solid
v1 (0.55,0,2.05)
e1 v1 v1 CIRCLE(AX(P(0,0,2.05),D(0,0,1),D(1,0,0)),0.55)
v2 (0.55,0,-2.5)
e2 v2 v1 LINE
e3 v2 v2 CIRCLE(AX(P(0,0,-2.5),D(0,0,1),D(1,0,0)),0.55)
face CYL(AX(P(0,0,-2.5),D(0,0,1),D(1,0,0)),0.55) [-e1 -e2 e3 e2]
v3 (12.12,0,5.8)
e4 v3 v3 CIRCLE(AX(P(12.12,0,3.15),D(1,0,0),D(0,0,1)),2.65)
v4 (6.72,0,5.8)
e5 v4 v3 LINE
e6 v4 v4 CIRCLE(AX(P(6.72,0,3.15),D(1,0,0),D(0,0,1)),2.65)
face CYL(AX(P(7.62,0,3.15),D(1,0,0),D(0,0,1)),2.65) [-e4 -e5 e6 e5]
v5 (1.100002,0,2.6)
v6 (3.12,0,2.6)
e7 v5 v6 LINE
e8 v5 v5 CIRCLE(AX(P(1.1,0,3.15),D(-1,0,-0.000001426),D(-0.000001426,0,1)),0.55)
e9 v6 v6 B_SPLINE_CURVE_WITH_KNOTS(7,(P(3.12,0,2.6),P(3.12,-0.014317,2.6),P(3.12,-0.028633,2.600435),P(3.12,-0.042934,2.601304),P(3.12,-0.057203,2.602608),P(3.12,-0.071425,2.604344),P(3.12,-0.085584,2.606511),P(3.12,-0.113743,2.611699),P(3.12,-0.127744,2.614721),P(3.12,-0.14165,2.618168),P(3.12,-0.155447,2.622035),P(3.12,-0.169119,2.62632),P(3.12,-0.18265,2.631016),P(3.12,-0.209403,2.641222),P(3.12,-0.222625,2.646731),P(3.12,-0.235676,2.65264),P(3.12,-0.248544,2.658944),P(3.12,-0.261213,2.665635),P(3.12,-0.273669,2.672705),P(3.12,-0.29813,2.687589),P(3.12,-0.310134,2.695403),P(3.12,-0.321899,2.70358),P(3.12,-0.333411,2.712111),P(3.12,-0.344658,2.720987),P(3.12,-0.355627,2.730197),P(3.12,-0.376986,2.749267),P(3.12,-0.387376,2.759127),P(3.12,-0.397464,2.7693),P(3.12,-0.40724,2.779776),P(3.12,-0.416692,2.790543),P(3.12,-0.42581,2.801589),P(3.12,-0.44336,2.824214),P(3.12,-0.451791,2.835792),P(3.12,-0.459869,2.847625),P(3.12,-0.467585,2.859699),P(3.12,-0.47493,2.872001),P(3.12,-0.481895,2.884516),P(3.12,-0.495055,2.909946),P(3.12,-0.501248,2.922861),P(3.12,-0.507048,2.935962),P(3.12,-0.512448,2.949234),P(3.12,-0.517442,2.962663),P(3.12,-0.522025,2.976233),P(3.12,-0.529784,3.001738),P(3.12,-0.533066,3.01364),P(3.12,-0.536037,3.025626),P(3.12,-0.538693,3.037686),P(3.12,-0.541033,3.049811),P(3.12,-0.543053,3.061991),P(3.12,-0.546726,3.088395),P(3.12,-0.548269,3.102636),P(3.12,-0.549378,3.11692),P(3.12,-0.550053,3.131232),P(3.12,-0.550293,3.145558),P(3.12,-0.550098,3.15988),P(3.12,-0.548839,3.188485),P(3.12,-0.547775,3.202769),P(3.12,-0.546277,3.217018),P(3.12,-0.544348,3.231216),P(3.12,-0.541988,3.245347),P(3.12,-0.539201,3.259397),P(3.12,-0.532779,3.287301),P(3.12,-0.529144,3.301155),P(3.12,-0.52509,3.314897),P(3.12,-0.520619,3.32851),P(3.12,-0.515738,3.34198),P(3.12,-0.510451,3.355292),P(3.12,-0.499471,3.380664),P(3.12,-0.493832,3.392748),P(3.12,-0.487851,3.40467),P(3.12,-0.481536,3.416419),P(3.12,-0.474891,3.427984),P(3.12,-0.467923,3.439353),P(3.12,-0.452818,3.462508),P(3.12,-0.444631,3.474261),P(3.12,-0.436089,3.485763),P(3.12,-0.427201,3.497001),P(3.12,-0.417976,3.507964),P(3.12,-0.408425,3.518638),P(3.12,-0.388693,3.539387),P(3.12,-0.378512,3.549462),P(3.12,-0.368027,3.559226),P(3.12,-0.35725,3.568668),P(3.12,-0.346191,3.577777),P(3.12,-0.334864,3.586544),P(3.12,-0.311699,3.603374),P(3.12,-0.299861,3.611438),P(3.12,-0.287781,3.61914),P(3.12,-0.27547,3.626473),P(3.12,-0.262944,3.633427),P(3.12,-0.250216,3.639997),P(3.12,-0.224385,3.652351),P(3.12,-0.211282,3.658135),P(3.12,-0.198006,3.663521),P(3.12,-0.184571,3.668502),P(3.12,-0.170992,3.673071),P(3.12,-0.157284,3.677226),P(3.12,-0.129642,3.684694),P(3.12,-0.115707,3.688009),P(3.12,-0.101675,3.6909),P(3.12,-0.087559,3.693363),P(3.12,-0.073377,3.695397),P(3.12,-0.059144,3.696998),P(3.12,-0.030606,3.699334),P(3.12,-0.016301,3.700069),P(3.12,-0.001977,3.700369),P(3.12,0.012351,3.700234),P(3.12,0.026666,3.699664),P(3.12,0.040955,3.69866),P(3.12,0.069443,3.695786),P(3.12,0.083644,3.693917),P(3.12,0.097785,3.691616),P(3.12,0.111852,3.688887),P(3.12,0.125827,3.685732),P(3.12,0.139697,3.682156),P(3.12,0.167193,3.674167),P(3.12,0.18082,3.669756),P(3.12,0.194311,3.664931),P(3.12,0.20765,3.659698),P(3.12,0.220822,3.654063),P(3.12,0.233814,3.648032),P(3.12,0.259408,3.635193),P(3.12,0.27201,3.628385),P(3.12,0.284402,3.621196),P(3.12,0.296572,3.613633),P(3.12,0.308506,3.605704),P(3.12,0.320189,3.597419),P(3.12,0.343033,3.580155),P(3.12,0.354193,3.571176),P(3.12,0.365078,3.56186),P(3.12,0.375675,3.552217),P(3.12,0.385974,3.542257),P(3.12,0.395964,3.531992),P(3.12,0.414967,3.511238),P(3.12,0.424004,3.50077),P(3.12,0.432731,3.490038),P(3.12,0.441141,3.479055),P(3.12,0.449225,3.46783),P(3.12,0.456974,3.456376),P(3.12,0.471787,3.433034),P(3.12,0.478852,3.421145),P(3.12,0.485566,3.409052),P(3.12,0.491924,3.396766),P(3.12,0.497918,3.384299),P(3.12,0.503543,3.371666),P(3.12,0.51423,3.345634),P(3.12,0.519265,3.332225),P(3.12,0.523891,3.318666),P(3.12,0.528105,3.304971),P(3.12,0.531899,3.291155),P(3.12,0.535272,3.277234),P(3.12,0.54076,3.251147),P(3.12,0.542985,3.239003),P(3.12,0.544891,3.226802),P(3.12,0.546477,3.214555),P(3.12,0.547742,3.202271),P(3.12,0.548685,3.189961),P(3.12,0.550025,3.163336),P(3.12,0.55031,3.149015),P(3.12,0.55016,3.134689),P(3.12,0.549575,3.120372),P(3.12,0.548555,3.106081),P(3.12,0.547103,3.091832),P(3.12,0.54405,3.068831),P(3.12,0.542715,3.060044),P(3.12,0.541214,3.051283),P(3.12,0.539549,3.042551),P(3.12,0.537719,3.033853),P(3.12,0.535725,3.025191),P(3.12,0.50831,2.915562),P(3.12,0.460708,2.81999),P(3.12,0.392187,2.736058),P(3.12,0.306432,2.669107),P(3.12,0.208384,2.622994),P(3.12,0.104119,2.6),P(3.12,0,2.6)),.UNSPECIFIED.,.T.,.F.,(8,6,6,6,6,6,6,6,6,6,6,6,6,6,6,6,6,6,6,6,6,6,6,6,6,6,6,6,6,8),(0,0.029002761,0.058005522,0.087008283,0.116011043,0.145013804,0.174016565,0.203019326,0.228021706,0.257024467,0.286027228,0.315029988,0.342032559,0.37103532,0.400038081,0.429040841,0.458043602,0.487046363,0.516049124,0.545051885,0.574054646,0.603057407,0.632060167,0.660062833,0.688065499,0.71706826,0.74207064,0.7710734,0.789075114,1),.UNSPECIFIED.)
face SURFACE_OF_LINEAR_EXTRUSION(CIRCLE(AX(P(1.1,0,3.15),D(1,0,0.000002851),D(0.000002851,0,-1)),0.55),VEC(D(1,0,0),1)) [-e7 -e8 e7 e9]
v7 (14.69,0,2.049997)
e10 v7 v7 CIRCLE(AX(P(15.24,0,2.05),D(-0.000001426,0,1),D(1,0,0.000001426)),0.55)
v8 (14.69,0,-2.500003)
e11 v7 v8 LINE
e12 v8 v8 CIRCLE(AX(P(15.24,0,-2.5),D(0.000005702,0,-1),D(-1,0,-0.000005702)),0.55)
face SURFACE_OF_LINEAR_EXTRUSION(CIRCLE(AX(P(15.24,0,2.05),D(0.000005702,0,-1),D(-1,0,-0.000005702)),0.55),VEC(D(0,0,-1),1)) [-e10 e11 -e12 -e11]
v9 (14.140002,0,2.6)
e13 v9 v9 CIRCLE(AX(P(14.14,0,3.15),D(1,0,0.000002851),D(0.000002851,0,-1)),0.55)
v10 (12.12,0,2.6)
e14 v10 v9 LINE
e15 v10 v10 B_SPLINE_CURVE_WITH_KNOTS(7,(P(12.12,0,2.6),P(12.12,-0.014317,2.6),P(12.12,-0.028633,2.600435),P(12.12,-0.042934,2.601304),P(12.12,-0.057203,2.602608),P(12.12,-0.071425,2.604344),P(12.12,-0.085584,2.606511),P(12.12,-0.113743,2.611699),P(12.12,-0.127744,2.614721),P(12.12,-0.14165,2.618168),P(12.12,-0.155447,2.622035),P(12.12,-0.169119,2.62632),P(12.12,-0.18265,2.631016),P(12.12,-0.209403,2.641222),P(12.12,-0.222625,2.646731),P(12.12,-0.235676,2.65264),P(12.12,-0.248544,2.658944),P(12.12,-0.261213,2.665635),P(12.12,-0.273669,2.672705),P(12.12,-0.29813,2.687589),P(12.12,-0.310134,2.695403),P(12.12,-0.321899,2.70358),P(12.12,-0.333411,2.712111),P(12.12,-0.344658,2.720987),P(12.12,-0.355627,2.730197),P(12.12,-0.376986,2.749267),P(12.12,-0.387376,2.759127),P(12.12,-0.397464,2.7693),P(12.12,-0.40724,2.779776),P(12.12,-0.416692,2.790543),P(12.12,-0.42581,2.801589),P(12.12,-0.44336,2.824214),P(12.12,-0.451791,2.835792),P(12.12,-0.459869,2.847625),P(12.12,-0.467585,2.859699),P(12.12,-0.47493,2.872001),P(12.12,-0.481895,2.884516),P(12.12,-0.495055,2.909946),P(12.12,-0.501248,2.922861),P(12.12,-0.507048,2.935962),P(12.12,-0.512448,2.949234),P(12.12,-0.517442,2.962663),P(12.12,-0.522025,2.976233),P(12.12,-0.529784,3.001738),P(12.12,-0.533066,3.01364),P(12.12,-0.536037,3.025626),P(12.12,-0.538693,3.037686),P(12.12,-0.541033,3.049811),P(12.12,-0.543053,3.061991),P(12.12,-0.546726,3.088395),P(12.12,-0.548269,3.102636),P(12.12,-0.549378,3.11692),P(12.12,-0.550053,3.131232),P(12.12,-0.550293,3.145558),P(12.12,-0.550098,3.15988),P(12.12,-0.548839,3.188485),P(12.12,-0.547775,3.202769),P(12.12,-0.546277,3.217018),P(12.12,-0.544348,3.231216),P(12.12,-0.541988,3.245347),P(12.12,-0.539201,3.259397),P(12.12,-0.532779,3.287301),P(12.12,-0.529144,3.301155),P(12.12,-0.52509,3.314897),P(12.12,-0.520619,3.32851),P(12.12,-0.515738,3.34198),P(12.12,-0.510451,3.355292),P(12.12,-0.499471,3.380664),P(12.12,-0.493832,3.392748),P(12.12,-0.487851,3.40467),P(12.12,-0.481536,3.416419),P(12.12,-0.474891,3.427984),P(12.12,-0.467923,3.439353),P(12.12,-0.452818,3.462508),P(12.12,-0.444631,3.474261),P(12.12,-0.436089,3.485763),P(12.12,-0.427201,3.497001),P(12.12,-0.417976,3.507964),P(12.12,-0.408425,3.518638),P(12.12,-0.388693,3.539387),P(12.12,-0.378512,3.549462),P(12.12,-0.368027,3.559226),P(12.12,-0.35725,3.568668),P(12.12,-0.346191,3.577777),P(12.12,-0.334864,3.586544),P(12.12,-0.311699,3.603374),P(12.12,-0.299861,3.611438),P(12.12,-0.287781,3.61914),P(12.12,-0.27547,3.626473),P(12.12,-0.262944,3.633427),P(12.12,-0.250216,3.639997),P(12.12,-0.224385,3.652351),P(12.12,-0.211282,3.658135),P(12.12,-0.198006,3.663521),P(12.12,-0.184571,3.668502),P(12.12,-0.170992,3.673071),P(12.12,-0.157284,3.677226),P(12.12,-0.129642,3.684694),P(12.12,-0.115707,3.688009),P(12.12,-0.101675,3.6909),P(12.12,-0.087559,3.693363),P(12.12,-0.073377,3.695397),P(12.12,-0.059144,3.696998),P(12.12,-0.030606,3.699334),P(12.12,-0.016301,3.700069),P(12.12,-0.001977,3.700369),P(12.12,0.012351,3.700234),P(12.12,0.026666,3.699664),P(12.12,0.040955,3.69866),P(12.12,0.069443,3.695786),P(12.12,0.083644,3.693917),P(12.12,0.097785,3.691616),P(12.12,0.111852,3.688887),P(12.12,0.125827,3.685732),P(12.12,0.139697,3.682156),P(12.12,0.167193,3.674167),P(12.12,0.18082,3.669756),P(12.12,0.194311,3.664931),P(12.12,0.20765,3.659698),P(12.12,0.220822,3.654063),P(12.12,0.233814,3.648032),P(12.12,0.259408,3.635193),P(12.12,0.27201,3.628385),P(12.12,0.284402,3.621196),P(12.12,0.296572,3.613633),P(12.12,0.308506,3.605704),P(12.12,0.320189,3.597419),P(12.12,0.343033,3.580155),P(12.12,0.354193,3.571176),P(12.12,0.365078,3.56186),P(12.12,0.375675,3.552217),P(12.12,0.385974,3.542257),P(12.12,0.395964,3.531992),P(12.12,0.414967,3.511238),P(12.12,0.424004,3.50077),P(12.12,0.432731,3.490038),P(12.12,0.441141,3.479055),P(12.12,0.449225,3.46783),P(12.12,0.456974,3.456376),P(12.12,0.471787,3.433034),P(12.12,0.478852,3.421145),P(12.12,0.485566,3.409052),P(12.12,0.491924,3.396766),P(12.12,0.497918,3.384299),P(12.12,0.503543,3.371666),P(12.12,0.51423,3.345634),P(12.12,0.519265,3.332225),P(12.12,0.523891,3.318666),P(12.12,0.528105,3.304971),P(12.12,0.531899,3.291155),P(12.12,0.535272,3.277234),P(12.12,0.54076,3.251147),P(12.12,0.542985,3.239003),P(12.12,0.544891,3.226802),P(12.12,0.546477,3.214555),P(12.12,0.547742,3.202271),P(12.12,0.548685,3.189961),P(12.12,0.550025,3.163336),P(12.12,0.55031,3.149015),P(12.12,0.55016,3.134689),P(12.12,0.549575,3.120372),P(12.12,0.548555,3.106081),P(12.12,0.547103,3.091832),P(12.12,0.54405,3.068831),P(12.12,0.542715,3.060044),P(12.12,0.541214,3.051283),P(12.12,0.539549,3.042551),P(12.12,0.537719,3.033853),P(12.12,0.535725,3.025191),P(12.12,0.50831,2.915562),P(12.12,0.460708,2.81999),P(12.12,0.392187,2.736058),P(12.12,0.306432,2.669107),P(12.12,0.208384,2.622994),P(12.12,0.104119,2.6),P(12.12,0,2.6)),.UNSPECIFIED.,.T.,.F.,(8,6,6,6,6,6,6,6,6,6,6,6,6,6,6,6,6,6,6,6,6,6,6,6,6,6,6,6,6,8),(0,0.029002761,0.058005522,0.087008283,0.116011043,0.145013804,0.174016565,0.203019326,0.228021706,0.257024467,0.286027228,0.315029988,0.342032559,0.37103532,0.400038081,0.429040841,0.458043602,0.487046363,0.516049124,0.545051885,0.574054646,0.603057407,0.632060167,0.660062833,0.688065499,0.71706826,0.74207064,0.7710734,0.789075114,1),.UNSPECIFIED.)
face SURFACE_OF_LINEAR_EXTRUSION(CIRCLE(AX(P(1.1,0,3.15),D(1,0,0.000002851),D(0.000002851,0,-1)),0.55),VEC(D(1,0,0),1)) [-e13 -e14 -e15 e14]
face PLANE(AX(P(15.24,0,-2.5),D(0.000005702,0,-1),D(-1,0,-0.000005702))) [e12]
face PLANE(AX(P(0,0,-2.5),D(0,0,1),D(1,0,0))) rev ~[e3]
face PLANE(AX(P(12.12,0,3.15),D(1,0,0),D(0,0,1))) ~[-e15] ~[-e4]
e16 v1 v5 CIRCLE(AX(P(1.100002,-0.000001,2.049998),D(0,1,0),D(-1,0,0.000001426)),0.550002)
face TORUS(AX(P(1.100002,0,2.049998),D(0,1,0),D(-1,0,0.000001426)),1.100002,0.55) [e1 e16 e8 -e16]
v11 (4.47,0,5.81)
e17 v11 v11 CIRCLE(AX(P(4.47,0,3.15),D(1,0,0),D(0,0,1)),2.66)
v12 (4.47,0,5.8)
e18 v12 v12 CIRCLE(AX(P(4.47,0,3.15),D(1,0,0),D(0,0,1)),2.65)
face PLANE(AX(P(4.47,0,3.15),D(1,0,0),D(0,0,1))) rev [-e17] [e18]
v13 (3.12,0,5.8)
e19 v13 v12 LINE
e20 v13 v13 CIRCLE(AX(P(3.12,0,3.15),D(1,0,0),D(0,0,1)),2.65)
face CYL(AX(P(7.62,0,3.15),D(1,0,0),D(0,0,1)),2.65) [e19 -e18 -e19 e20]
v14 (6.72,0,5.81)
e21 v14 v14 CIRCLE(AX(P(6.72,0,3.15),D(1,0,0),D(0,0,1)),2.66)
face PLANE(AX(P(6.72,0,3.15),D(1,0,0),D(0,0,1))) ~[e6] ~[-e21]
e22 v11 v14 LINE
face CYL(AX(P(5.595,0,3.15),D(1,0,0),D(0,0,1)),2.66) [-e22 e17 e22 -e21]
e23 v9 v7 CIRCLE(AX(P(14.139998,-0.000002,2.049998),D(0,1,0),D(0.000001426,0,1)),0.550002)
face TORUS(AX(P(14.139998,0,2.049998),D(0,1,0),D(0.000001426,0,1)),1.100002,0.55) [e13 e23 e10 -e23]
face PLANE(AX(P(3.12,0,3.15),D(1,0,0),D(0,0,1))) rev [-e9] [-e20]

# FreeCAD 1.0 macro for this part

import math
import FreeCAD as App
import Part
import Sketcher
from FreeCAD import Vector

doc = App.newDocument("Part")
body = doc.addObject("PartDesign::Body", "Body")

sketch1 = doc.addObject("Sketcher::SketchObject", "Sketch")
body.addObject(sketch1)
sketch1.AttachmentSupport = (doc.XZ_Plane, [""])
sketch1.MapMode = "FlatFace"
sketch1.addGeometry([
    Part.LineSegment(Vector(3.1, 5.8, 0), Vector(3.1, 3.1, 0)),
    Part.LineSegment(Vector(3.1, 3.1, 0), Vector(12.1, 3.1, 0)),
    Part.LineSegment(Vector(12.1, 3.1, 0), Vector(12.1, 5.8, 0)),
    Part.LineSegment(Vector(12.1, 5.8, 0), Vector(3.1, 5.8, 0)),
], False)
sketch1.addGeometry(Part.LineSegment(Vector(3.1, 3.1, 0), Vector(12.1, 3.1, 0)), True)
sketch1.addConstraint([
    Sketcher.Constraint("Coincident", 0, 2, 1, 1),
    Sketcher.Constraint("Coincident", 1, 2, 2, 1),
    Sketcher.Constraint("Coincident", 2, 2, 3, 1),
    Sketcher.Constraint("Coincident", 3, 2, 0, 1),
    Sketcher.Constraint("Vertical", 0),
    Sketcher.Constraint("Horizontal", 1),
    Sketcher.Constraint("Vertical", 2),
    Sketcher.Constraint("Horizontal", 3),
    Sketcher.Constraint("Horizontal", 4),
    Sketcher.Constraint("Coincident", 4, 1, 0, 2),
    Sketcher.Constraint("Vertical", 2, 2, 4, 2),
    Sketcher.Constraint("DistanceX", 1, 1, 1, 2, 9.0),
    Sketcher.Constraint("DistanceY", 0, 2, 0, 1, 2.65),
    Sketcher.Constraint("DistanceY", -1, 1, 2, 2, 5.8),
    Sketcher.Constraint("DistanceX", -1, 1, 0, 2, 3.12),
])
revolution = doc.addObject("PartDesign::Revolution", "Revolution")
body.addObject(revolution)
revolution.Profile = sketch1
revolution.ReferenceAxis = (sketch1, ["Axis0"])
revolution.Angle = 360
body2 = doc.addObject("PartDesign::Body", "Body001")

sketch2 = doc.addObject("Sketcher::SketchObject", "Sketch001")
body2.addObject(sketch2)
sketch2.AttachmentSupport = (doc.getObject("XY_Plane001"), [""])
sketch2.MapMode = "FlatFace"
sketch2.AttachmentOffset = App.Placement(Vector(0, 0, -2), App.Rotation())
sketch2.addGeometry(Part.Circle(Vector(0, 0, 0), Vector(0, 0, 1), 0.6), False)
sketch2.addConstraint([
    Sketcher.Constraint("Coincident", 0, 3, -1, 1),
    Sketcher.Constraint("Diameter", 0, 1.1),
])

sketch3 = doc.addObject("Sketcher::SketchObject", "Sketch002")
body2.addObject(sketch3)
sketch3.AttachmentSupport = (doc.getObject("XZ_Plane001"), [""])
sketch3.MapMode = "FlatFace"
sketch3.addGeometry([
    Part.LineSegment(Vector(0, -2.5, 0), Vector(0, 2, 0)),
    Part.ArcOfCircle(Part.Circle(Vector(1.1, 2, 0), Vector(0, 0, 1), 1.1), math.radians(90), math.radians(180)),
    Part.LineSegment(Vector(1.1, 3.1, 0), Vector(14.1, 3.1, 0)),
    Part.ArcOfCircle(Part.Circle(Vector(14.1, 2, 0), Vector(0, 0, 1), 1.1), math.radians(0), math.radians(90)),
    Part.LineSegment(Vector(15.2, 2, 0), Vector(15.2, -2.5, 0)),
], False)
sketch3.addConstraint([
    Sketcher.Constraint("Tangent", 0, 2, 1, 2),
    Sketcher.Constraint("Tangent", 1, 1, 2, 1),
    Sketcher.Constraint("Tangent", 2, 2, 3, 2),
    Sketcher.Constraint("Tangent", 3, 1, 4, 1),
    Sketcher.Constraint("Vertical", 0),
    Sketcher.Constraint("Horizontal", 2),
    Sketcher.Constraint("Vertical", 4),
    Sketcher.Constraint("Equal", 1, 3),
    Sketcher.Constraint("PointOnObject", 0, 1, -2),
    Sketcher.Constraint("Horizontal", 0, 1, 4, 2),
    Sketcher.Constraint("Radius", 1, 1.100002),
    Sketcher.Constraint("DistanceX", 2, 1, 2, 2, 13.04),
    Sketcher.Constraint("DistanceY", 0, 1, 0, 2, 4.55),
    Sketcher.Constraint("DistanceY", 0, 1, -1, 1, 2.5),
])
doc.recompute()

additivepipe = doc.addObject("PartDesign::AdditivePipe", "AdditivePipe")
body2.addObject(additivepipe)
additivepipe.Profile = sketch2
additivepipe.Spine = (sketch3, ["Edge1", "Edge2", "Edge3", "Edge4", "Edge5"])
body3 = doc.addObject("PartDesign::Body", "Body002")

sketch4 = doc.addObject("Sketcher::SketchObject", "Sketch003")
body3.addObject(sketch4)
sketch4.AttachmentSupport = (doc.getObject("XZ_Plane002"), [""])
sketch4.MapMode = "FlatFace"
sketch4.addGeometry([
    Part.LineSegment(Vector(4.47, 5.81, 0), Vector(4.47, 5.79, 0)),
    Part.LineSegment(Vector(4.47, 5.79, 0), Vector(6.72, 5.79, 0)),
    Part.LineSegment(Vector(6.72, 5.79, 0), Vector(6.72, 5.81, 0)),
    Part.LineSegment(Vector(6.72, 5.81, 0), Vector(4.47, 5.81, 0)),
], False)
sketch4.addGeometry(Part.LineSegment(Vector(4.47, 3.15, 0), Vector(6.72, 3.15, 0)), True)
sketch4.addConstraint([
    Sketcher.Constraint("Coincident", 0, 2, 1, 1),
    Sketcher.Constraint("Coincident", 1, 2, 2, 1),
    Sketcher.Constraint("Coincident", 2, 2, 3, 1),
    Sketcher.Constraint("Coincident", 3, 2, 0, 1),
    Sketcher.Constraint("Vertical", 0),
    Sketcher.Constraint("Horizontal", 1),
    Sketcher.Constraint("Vertical", 2),
    Sketcher.Constraint("Horizontal", 3),
    Sketcher.Constraint("Horizontal", 4),
    Sketcher.Constraint("Vertical", 3, 2, 4, 1),
    Sketcher.Constraint("Vertical", 2, 2, 4, 2),
    Sketcher.Constraint("DistanceX", 1, 1, 1, 2, 2.25),
    Sketcher.Constraint("DistanceY", 0, 2, 0, 1, 0.02),
    Sketcher.Constraint("DistanceX", -1, 1, 0, 2, 4.47),
    Sketcher.Constraint("DistanceY", -1, 1, 0, 2, 5.79),
    Sketcher.Constraint("DistanceY", -1, 1, 4, 1, 3.15),
])
revolution2 = doc.addObject("PartDesign::Revolution", "Revolution001")
body3.addObject(revolution2)
revolution2.Profile = sketch4
revolution2.ReferenceAxis = (sketch4, ["Axis0"])
revolution2.Angle = 360
doc.recompute()

boolean = doc.addObject("PartDesign::Boolean", "Boolean")
body3.addObject(boolean)
boolean.Type = "Fuse"
boolean.addObjects([body])
doc.recompute()

boolean2 = doc.addObject("PartDesign::Boolean", "Boolean001")
body3.addObject(boolean2)
boolean2.Type = "Fuse"
boolean2.addObjects([body2])

doc.recompute()
